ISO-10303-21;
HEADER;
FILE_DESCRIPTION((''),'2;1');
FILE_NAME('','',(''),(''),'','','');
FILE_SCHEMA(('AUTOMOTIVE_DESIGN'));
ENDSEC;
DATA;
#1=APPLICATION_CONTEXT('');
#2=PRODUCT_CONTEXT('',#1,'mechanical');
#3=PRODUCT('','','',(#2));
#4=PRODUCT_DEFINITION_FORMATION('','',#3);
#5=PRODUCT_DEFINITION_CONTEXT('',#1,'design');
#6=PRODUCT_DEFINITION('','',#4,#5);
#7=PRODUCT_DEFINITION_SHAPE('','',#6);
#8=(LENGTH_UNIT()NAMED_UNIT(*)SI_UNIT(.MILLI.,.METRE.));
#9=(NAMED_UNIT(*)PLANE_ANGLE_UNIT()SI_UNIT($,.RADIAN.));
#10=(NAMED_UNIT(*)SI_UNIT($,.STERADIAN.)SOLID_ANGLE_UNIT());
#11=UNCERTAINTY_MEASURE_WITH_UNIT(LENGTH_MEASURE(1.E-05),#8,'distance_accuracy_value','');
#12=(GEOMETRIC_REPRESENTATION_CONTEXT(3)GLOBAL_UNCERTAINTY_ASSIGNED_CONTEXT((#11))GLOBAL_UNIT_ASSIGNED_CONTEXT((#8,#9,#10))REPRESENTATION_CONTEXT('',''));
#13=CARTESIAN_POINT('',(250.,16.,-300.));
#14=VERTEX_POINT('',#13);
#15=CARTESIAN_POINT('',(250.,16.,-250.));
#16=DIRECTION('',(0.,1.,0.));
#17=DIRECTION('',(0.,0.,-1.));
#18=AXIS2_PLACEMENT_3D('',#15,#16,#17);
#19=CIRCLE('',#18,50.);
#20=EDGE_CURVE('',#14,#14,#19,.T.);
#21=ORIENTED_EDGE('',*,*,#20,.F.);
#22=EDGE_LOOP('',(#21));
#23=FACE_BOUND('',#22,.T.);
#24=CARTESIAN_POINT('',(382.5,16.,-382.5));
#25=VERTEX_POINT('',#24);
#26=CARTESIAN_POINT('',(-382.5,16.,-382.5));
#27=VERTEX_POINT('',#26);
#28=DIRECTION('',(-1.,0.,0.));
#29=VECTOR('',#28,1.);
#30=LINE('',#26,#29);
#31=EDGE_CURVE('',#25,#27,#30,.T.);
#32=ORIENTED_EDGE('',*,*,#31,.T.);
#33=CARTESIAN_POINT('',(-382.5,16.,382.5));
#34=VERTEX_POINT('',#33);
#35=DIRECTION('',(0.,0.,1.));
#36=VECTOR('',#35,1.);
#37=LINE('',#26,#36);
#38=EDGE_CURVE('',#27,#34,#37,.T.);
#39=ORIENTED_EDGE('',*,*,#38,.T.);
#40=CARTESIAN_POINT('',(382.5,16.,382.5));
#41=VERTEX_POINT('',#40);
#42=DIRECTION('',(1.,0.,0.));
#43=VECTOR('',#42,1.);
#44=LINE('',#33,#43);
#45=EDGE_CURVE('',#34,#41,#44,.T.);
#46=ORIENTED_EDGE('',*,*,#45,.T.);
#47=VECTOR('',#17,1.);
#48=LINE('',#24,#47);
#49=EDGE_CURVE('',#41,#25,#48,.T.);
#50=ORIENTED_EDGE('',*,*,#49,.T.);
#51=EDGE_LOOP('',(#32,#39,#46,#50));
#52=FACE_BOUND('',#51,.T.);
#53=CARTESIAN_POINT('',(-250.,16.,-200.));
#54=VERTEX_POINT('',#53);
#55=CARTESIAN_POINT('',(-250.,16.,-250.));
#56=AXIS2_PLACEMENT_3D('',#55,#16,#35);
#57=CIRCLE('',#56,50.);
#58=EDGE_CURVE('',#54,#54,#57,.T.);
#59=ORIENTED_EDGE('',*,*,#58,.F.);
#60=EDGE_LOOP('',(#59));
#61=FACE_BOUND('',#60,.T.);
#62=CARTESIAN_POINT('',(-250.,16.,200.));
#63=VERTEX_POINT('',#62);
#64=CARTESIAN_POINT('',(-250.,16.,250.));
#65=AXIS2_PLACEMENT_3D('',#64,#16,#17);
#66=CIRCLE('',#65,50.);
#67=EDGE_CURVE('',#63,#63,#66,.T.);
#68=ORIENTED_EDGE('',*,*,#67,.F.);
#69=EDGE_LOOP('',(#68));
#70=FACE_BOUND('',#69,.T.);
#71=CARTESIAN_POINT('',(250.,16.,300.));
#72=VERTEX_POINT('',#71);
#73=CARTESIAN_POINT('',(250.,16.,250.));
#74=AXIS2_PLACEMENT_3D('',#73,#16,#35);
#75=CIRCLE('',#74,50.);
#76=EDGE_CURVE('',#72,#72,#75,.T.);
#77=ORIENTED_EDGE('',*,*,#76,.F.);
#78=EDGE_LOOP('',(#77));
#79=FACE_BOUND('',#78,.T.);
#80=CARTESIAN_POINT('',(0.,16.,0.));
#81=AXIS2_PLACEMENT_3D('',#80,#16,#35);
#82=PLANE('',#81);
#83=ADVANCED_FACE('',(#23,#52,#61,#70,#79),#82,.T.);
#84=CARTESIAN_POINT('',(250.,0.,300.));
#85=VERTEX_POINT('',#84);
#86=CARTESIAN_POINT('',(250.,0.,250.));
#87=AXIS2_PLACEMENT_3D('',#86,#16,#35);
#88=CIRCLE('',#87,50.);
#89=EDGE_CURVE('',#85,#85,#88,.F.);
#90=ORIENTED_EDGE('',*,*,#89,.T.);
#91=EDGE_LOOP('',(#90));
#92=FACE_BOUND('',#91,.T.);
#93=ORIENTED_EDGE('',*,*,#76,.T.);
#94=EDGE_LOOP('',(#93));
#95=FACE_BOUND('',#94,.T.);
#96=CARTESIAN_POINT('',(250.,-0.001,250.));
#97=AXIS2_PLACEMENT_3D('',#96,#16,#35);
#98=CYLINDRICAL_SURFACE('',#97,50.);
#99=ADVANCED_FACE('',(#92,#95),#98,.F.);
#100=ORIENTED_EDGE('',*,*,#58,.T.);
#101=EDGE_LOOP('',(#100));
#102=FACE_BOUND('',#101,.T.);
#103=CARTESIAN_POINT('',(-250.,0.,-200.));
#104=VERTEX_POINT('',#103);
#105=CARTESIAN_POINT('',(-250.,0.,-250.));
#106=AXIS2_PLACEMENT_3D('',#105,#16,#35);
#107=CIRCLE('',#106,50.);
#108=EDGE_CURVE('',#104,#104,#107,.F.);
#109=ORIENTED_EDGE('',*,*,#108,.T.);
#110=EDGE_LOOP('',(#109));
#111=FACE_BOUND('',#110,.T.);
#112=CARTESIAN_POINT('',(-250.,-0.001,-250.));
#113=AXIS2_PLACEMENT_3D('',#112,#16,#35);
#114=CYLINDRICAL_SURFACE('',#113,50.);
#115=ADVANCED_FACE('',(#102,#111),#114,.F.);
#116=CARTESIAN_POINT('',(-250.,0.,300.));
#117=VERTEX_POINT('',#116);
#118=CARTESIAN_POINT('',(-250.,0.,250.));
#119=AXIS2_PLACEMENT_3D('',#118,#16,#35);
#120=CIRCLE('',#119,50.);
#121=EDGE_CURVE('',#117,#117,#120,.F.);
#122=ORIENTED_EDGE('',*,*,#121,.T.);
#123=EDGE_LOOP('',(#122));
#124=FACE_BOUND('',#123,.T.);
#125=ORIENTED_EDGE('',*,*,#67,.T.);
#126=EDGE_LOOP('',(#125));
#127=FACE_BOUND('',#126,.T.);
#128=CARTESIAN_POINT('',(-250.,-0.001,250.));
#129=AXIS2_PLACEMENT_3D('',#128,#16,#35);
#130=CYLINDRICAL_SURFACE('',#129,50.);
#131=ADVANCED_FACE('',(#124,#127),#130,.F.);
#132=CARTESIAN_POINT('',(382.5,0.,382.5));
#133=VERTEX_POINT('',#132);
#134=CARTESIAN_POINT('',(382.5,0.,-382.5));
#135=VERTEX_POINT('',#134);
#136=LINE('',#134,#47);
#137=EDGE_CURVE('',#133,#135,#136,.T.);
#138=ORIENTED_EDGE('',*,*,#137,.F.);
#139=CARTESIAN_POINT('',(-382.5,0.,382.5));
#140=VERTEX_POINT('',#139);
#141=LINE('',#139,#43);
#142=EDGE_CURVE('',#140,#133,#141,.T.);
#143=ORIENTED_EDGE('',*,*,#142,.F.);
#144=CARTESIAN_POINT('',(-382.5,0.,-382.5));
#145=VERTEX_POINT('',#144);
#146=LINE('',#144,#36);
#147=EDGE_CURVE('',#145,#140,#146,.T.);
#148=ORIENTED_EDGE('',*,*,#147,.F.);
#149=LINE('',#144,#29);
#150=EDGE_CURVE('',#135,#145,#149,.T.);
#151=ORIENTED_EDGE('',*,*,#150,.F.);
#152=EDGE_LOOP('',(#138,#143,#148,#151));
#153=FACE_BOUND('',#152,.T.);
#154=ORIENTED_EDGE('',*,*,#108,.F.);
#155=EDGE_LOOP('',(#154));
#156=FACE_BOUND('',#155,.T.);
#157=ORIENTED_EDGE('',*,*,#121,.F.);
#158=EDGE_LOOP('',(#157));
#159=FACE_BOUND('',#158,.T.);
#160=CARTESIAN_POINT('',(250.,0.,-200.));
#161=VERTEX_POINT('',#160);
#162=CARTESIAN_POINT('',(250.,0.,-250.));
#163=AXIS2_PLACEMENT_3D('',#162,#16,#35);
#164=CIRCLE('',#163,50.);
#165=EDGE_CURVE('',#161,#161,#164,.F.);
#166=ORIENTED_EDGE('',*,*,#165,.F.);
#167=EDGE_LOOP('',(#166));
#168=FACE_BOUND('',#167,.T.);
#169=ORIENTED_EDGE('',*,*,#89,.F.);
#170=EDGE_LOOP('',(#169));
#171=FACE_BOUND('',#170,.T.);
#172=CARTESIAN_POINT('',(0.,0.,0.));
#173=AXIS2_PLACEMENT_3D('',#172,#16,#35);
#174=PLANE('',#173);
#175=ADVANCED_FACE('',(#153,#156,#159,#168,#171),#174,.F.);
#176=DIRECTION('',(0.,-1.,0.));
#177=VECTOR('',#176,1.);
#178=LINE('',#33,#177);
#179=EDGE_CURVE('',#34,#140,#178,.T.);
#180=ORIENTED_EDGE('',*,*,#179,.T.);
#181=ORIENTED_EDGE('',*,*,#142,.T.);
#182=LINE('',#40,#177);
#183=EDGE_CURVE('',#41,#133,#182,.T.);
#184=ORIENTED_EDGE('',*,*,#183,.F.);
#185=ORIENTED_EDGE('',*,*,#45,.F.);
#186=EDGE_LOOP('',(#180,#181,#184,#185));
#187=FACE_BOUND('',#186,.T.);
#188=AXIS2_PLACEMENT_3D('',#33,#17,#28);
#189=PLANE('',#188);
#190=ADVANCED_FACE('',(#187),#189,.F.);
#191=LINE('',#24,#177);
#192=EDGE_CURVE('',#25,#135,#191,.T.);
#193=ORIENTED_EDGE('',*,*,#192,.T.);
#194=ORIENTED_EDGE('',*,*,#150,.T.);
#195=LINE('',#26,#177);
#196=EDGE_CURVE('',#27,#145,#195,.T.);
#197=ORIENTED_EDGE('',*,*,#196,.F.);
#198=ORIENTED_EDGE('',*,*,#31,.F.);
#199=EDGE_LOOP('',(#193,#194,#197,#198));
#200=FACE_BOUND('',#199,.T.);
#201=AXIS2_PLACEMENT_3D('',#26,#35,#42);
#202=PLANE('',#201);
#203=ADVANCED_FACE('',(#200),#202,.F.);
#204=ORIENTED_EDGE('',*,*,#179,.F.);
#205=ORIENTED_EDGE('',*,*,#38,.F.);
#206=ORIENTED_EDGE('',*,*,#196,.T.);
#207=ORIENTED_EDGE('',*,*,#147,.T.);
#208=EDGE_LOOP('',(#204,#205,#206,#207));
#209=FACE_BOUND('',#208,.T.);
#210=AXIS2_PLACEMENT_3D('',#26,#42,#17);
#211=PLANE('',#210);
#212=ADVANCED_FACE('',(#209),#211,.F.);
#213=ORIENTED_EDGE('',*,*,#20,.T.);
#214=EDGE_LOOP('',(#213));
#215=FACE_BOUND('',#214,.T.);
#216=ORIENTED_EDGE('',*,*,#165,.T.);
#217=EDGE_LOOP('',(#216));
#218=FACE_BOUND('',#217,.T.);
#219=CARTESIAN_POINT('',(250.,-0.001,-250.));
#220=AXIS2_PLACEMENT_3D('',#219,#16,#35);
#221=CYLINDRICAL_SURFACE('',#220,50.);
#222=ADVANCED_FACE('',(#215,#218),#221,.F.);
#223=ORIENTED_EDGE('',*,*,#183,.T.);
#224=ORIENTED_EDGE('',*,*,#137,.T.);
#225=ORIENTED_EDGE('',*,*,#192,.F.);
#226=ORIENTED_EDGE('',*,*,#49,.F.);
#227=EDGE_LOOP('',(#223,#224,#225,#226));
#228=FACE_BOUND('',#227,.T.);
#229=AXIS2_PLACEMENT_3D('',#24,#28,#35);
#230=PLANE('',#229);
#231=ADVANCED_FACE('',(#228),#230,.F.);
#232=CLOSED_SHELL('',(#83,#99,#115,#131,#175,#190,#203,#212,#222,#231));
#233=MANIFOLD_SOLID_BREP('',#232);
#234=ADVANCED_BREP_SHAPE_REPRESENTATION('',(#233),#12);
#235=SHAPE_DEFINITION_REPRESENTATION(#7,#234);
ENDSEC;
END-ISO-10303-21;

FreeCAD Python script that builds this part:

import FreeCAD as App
import Part
import Sketcher


def add_polygon(sketch, points):
    """Adds a closed chain of lines whose ends are joined by coincident constraints."""
    first, n = sketch.GeometryCount, len(points)
    for a, b in zip(points, points[1:] + points[:1]):
        sketch.addGeometry(Part.LineSegment(App.Vector(*a, 0), App.Vector(*b, 0)), False)
    for i in range(n):
        sketch.addConstraint(Sketcher.Constraint("Coincident", first + i, 2, first + (i + 1) % n, 1))

doc = App.newDocument("Part")
params = doc.addObject("Spreadsheet::Sheet", "Params")
for row, (alias, value) in enumerate([
    ("sketch1_width", "765 mm"),
    ("pad1_length", "16 mm"),
    ("sketch2_diameter", "100 mm"),
    ("sketch3_diameter", "100 mm"),
    ("sketch4_diameter", "100 mm"),
    ("sketch5_diameter", "100 mm"),
], start=1):
    params.set(f"A{row}", alias)
    params.set(f"B{row}", "=" + value)
    params.setAlias(f"B{row}", alias)

body = doc.addObject("PartDesign::Body", "Body")

# Sketch on XZ plane
sketch1 = body.newObject("Sketcher::SketchObject", "Sketch")
sketch1.AttachmentSupport = (doc.getObject("XZ_Plane"), [""])
sketch1.MapMode = "FlatFace"
add_polygon(sketch1, [(-382, -382), (-382, 382), (382, 382), (382, -382)])  # lines 0-3
sketch1.addConstraint([
    Sketcher.Constraint("Vertical", 0),
    Sketcher.Constraint("Horizontal", 1),
    Sketcher.Constraint("Vertical", 2),
    Sketcher.Constraint("Horizontal", 3),
    Sketcher.Constraint("Symmetric", 0, 2, 2, 2, -1, 1),
    Sketcher.Constraint("Equal", 3, 0),
    Sketcher.Constraint("DistanceX", 1, 1, 1, 2, 765.0),
])
sketch1.setExpression("Constraints[10]", "Params.sketch1_width")
pad1 = body.newObject("PartDesign::Pad", "Pad")
pad1.Profile = sketch1
pad1.setExpression("Length", "Params.pad1_length")
pad1.Reversed = True

# Sketch on XZ plane
sketch2 = body.newObject("Sketcher::SketchObject", "Sketch001")
sketch2.AttachmentSupport = (doc.getObject("XZ_Plane"), [""])
sketch2.MapMode = "FlatFace"
sketch2.AttachmentOffset = App.Placement(App.Vector(0, 0, -16), App.Rotation())
sketch2.addGeometry(Part.Circle(App.Vector(-250, -250, 0), App.Vector(0, 0, 1), 50), False)
sketch2.addConstraint([
    Sketcher.Constraint("Diameter", 0, 100.0),
    Sketcher.Constraint("DistanceX", 0, 3, -1, 1, 250.0),
    Sketcher.Constraint("DistanceY", 0, 3, -1, 1, 250.0),
])
sketch2.setExpression("Constraints[0]", "Params.sketch2_diameter")
pocket1 = body.newObject("PartDesign::Pocket", "Pocket")
pocket1.Profile = sketch2
pocket1.Type = "UpToFirst"
pocket1.Reversed = True

# Sketch on XZ plane
sketch3 = body.newObject("Sketcher::SketchObject", "Sketch002")
sketch3.AttachmentSupport = (doc.getObject("XZ_Plane"), [""])
sketch3.MapMode = "FlatFace"
sketch3.AttachmentOffset = App.Placement(App.Vector(0, 0, -16), App.Rotation())
sketch3.addGeometry(Part.Circle(App.Vector(250, -250, 0), App.Vector(0, 0, 1), 50), False)
sketch3.addConstraint([
    Sketcher.Constraint("Diameter", 0, 100.0),
    Sketcher.Constraint("DistanceX", -1, 1, 0, 3, 250.0),
    Sketcher.Constraint("DistanceY", 0, 3, -1, 1, 250.0),
])
sketch3.setExpression("Constraints[0]", "Params.sketch3_diameter")
pocket2 = body.newObject("PartDesign::Pocket", "Pocket001")
pocket2.Profile = sketch3
pocket2.Type = "UpToFirst"
pocket2.Reversed = True

# Sketch on XZ plane
sketch4 = body.newObject("Sketcher::SketchObject", "Sketch003")
sketch4.AttachmentSupport = (doc.getObject("XZ_Plane"), [""])
sketch4.MapMode = "FlatFace"
sketch4.AttachmentOffset = App.Placement(App.Vector(0, 0, -16), App.Rotation())
sketch4.addGeometry(Part.Circle(App.Vector(250, 250, 0), App.Vector(0, 0, 1), 50), False)
sketch4.addConstraint([
    Sketcher.Constraint("Diameter", 0, 100.0),
    Sketcher.Constraint("DistanceX", -1, 1, 0, 3, 250.0),
    Sketcher.Constraint("DistanceY", -1, 1, 0, 3, 250.0),
])
sketch4.setExpression("Constraints[0]", "Params.sketch4_diameter")
pocket3 = body.newObject("PartDesign::Pocket", "Pocket002")
pocket3.Profile = sketch4
pocket3.Type = "UpToFirst"
pocket3.Reversed = True

# Sketch on XZ plane
sketch5 = body.newObject("Sketcher::SketchObject", "Sketch004")
sketch5.AttachmentSupport = (doc.getObject("XZ_Plane"), [""])
sketch5.MapMode = "FlatFace"
sketch5.AttachmentOffset = App.Placement(App.Vector(0, 0, -16), App.Rotation())
sketch5.addGeometry(Part.Circle(App.Vector(-250, 250, 0), App.Vector(0, 0, 1), 50), False)
sketch5.addConstraint([
    Sketcher.Constraint("Diameter", 0, 100.0),
    Sketcher.Constraint("DistanceX", 0, 3, -1, 1, 250.0),
    Sketcher.Constraint("DistanceY", -1, 1, 0, 3, 250.0),
])
sketch5.setExpression("Constraints[0]", "Params.sketch5_diameter")
pocket4 = body.newObject("PartDesign::Pocket", "Pocket003")
pocket4.Profile = sketch5
pocket4.Type = "UpToFirst"
pocket4.Reversed = True

doc.recompute()
